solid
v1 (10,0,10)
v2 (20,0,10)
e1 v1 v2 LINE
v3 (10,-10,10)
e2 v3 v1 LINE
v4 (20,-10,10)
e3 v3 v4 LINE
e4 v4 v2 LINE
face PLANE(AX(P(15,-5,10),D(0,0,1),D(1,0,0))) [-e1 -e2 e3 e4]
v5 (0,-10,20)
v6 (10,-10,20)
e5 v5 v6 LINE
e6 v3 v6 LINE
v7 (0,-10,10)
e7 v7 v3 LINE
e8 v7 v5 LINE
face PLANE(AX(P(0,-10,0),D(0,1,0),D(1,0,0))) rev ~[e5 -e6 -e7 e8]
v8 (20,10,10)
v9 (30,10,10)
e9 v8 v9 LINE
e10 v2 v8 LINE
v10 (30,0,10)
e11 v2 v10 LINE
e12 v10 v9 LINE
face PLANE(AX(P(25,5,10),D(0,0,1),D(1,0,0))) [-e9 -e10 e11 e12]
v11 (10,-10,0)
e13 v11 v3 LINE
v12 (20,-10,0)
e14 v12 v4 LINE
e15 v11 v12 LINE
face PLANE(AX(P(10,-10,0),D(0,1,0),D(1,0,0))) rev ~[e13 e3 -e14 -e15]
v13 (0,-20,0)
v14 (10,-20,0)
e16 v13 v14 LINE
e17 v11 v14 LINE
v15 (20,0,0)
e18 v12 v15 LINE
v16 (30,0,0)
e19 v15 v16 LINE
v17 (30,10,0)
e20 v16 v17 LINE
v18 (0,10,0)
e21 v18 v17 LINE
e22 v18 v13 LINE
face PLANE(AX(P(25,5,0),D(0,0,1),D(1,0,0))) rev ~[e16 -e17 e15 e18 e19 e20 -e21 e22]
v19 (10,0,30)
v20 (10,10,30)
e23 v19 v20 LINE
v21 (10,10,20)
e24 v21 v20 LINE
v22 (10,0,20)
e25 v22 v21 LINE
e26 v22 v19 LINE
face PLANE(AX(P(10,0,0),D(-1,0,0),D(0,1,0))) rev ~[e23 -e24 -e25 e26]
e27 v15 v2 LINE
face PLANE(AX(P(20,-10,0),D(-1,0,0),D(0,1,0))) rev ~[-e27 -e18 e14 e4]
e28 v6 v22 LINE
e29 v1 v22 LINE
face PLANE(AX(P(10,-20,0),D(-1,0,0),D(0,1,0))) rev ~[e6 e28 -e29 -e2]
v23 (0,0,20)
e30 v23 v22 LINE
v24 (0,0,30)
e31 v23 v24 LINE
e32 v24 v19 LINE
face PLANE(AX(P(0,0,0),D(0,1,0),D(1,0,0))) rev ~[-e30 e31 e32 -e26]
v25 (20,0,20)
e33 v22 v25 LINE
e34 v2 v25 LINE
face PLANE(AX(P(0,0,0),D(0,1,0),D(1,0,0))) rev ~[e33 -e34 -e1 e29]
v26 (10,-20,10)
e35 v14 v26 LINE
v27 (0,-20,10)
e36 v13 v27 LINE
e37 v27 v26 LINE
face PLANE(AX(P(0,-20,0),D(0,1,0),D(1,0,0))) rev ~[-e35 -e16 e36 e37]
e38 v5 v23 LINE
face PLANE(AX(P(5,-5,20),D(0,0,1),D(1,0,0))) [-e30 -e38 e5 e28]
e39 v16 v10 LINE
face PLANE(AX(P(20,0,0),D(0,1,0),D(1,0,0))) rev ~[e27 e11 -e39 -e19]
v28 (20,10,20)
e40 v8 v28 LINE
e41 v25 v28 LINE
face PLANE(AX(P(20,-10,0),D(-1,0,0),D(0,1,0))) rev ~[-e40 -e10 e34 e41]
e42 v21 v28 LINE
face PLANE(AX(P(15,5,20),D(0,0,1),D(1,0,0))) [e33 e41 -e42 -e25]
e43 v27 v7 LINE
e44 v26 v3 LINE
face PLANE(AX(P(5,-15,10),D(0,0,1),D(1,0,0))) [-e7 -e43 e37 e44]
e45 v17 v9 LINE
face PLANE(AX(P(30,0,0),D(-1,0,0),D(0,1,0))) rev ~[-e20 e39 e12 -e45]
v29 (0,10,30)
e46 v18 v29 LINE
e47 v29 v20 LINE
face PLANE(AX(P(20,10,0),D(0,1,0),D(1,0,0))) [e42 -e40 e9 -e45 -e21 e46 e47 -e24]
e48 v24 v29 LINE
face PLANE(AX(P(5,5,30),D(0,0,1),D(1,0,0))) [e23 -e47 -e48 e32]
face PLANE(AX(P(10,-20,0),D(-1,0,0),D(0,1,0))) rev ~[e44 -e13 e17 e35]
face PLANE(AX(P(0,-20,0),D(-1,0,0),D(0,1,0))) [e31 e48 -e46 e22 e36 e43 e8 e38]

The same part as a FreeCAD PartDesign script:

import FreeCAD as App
import Part
import Sketcher
Q = App.Units.Quantity

doc = App.newDocument("Part")
body = doc.addObject("PartDesign::Body", "Body")

sketch1 = body.newObject("Sketcher::SketchObject", "Sketch")
sketch1.AttachmentSupport = (doc.getObject("XY_Plane"), [""])
sketch1.MapMode = "FlatFace"
sketch1.addGeometry([
    Part.LineSegment(App.Vector(0, 10, 0), App.Vector(0, 0, 0)),
    Part.LineSegment(App.Vector(0, 0, 0), App.Vector(10, 0, 0)),
    Part.LineSegment(App.Vector(10, 0, 0), App.Vector(10, 10, 0)),
    Part.LineSegment(App.Vector(10, 10, 0), App.Vector(0, 10, 0)),
], False)
sketch1.addConstraint([
    Sketcher.Constraint("Coincident", 0, 2, 1, 1),
    Sketcher.Constraint("Coincident", 1, 2, 2, 1),
    Sketcher.Constraint("Coincident", 2, 2, 3, 1),
    Sketcher.Constraint("Coincident", 3, 2, 0, 1),
    Sketcher.Constraint("Vertical", 0),
    Sketcher.Constraint("Horizontal", 1),
    Sketcher.Constraint("Vertical", 2),
    Sketcher.Constraint("Horizontal", 3),
    Sketcher.Constraint("Coincident", 0, 2, -1, 1),
    Sketcher.Constraint("Equal", 3, 0),
    Sketcher.Constraint("DistanceX", 1, 1, 1, 2, Q("10 mm")),
])
pad1 = body.newObject("PartDesign::Pad", "Pad")
pad1.Profile = sketch1
pad1.Length = 30
body2 = doc.addObject("PartDesign::Body", "Body001")

sketch2 = body2.newObject("Sketcher::SketchObject", "Sketch001")
sketch2.AttachmentSupport = (doc.getObject("XY_Plane001"), [""])
sketch2.MapMode = "FlatFace"
sketch2.addGeometry([
    Part.LineSegment(App.Vector(0, 0, 0), App.Vector(0, -10, 0)),
    Part.LineSegment(App.Vector(0, -10, 0), App.Vector(10, -10, 0)),
    Part.LineSegment(App.Vector(10, -10, 0), App.Vector(10, 0, 0)),
    Part.LineSegment(App.Vector(10, 0, 0), App.Vector(0, 0, 0)),
], False)
sketch2.addConstraint([
    Sketcher.Constraint("Coincident", 0, 2, 1, 1),
    Sketcher.Constraint("Coincident", 1, 2, 2, 1),
    Sketcher.Constraint("Coincident", 2, 2, 3, 1),
    Sketcher.Constraint("Coincident", 3, 2, 0, 1),
    Sketcher.Constraint("Vertical", 0),
    Sketcher.Constraint("Horizontal", 1),
    Sketcher.Constraint("Vertical", 2),
    Sketcher.Constraint("Horizontal", 3),
    Sketcher.Constraint("Coincident", 3, 2, -1, 1),
    Sketcher.Constraint("Equal", 3, 0),
    Sketcher.Constraint("DistanceX", 1, 1, 1, 2, Q("10 mm")),
])
pad2 = body2.newObject("PartDesign::Pad", "Pad001")
pad2.Profile = sketch2
pad2.Length = 20
body3 = doc.addObject("PartDesign::Body", "Body002")

sketch3 = body3.newObject("Sketcher::SketchObject", "Sketch002")
sketch3.AttachmentSupport = (doc.getObject("XY_Plane002"), [""])
sketch3.MapMode = "FlatFace"
sketch3.addGeometry([
    Part.LineSegment(App.Vector(0, -10, 0), App.Vector(0, -20, 0)),
    Part.LineSegment(App.Vector(0, -20, 0), App.Vector(10, -20, 0)),
    Part.LineSegment(App.Vector(10, -20, 0), App.Vector(10, -10, 0)),
    Part.LineSegment(App.Vector(10, -10, 0), App.Vector(0, -10, 0)),
], False)
sketch3.addConstraint([
    Sketcher.Constraint("Coincident", 0, 2, 1, 1),
    Sketcher.Constraint("Coincident", 1, 2, 2, 1),
    Sketcher.Constraint("Coincident", 2, 2, 3, 1),
    Sketcher.Constraint("Coincident", 3, 2, 0, 1),
    Sketcher.Constraint("Vertical", 0),
    Sketcher.Constraint("Horizontal", 1),
    Sketcher.Constraint("Vertical", 2),
    Sketcher.Constraint("Horizontal", 3),
    Sketcher.Constraint("PointOnObject", 0, 2, -2),
    Sketcher.Constraint("Equal", 3, 0),
    Sketcher.Constraint("DistanceX", 1, 1, 1, 2, Q("10 mm")),
    Sketcher.Constraint("DistanceY", 0, 2, -1, 1, Q("20 mm")),
])
pad3 = body3.newObject("PartDesign::Pad", "Pad002")
pad3.Profile = sketch3
pad3.Length = 10
body4 = doc.addObject("PartDesign::Body", "Body003")

sketch4 = body4.newObject("Sketcher::SketchObject", "Sketch003")
sketch4.AttachmentSupport = (doc.getObject("XY_Plane003"), [""])
sketch4.MapMode = "FlatFace"
sketch4.addGeometry([
    Part.LineSegment(App.Vector(10, 0, 0), App.Vector(10, -10, 0)),
    Part.LineSegment(App.Vector(10, -10, 0), App.Vector(20, -10, 0)),
    Part.LineSegment(App.Vector(20, -10, 0), App.Vector(20, 0, 0)),
    Part.LineSegment(App.Vector(20, 0, 0), App.Vector(10, 0, 0)),
], False)
sketch4.addConstraint([
    Sketcher.Constraint("Coincident", 0, 2, 1, 1),
    Sketcher.Constraint("Coincident", 1, 2, 2, 1),
    Sketcher.Constraint("Coincident", 2, 2, 3, 1),
    Sketcher.Constraint("Coincident", 3, 2, 0, 1),
    Sketcher.Constraint("Vertical", 0),
    Sketcher.Constraint("Horizontal", 1),
    Sketcher.Constraint("Vertical", 2),
    Sketcher.Constraint("Horizontal", 3),
    Sketcher.Constraint("PointOnObject", 2, 2, -1),
    Sketcher.Constraint("Equal", 3, 0),
    Sketcher.Constraint("DistanceX", 1, 1, 1, 2, Q("10 mm")),
    Sketcher.Constraint("DistanceX", -1, 1, 0, 2, Q("10 mm")),
])
pad4 = body4.newObject("PartDesign::Pad", "Pad003")
pad4.Profile = sketch4
pad4.Length = 10
body5 = doc.addObject("PartDesign::Body", "Body004")

sketch5 = body5.newObject("Sketcher::SketchObject", "Sketch004")
sketch5.AttachmentSupport = (doc.getObject("XY_Plane004"), [""])
sketch5.MapMode = "FlatFace"
sketch5.addGeometry([
    Part.LineSegment(App.Vector(20, 10, 0), App.Vector(20, 0, 0)),
    Part.LineSegment(App.Vector(20, 0, 0), App.Vector(30, 0, 0)),
    Part.LineSegment(App.Vector(30, 0, 0), App.Vector(30, 10, 0)),
    Part.LineSegment(App.Vector(30, 10, 0), App.Vector(20, 10, 0)),
], False)
sketch5.addConstraint([
    Sketcher.Constraint("Coincident", 0, 2, 1, 1),
    Sketcher.Constraint("Coincident", 1, 2, 2, 1),
    Sketcher.Constraint("Coincident", 2, 2, 3, 1),
    Sketcher.Constraint("Coincident", 3, 2, 0, 1),
    Sketcher.Constraint("Vertical", 0),
    Sketcher.Constraint("Horizontal", 1),
    Sketcher.Constraint("Vertical", 2),
    Sketcher.Constraint("Horizontal", 3),
    Sketcher.Constraint("PointOnObject", 0, 2, -1),
    Sketcher.Constraint("Equal", 3, 0),
    Sketcher.Constraint("DistanceX", 1, 1, 1, 2, Q("10 mm")),
    Sketcher.Constraint("DistanceX", -1, 1, 0, 2, Q("20 mm")),
])
pad5 = body5.newObject("PartDesign::Pad", "Pad004")
pad5.Profile = sketch5
pad5.Length = 10
body6 = doc.addObject("PartDesign::Body", "Body005")

sketch6 = body6.newObject("Sketcher::SketchObject", "Sketch005")
sketch6.AttachmentSupport = (doc.getObject("XY_Plane005"), [""])
sketch6.MapMode = "FlatFace"
sketch6.addGeometry([
    Part.LineSegment(App.Vector(10, 10, 0), App.Vector(10, 0, 0)),
    Part.LineSegment(App.Vector(10, 0, 0), App.Vector(20, 0, 0)),
    Part.LineSegment(App.Vector(20, 0, 0), App.Vector(20, 10, 0)),
    Part.LineSegment(App.Vector(20, 10, 0), App.Vector(10, 10, 0)),
], False)
sketch6.addConstraint([
    Sketcher.Constraint("Coincident", 0, 2, 1, 1),
    Sketcher.Constraint("Coincident", 1, 2, 2, 1),
    Sketcher.Constraint("Coincident", 2, 2, 3, 1),
    Sketcher.Constraint("Coincident", 3, 2, 0, 1),
    Sketcher.Constraint("Vertical", 0),
    Sketcher.Constraint("Horizontal", 1),
    Sketcher.Constraint("Vertical", 2),
    Sketcher.Constraint("Horizontal", 3),
    Sketcher.Constraint("PointOnObject", 0, 2, -1),
    Sketcher.Constraint("Equal", 3, 0),
    Sketcher.Constraint("DistanceX", 1, 1, 1, 2, Q("10 mm")),
    Sketcher.Constraint("DistanceX", -1, 1, 0, 2, Q("10 mm")),
])
pad6 = body6.newObject("PartDesign::Pad", "Pad005")
pad6.Profile = sketch6
pad6.Length = 20
doc.recompute()

boolean = body6.newObject("PartDesign::Boolean", "Boolean")
boolean.Type = "Fuse"
boolean.addObjects([body])
doc.recompute()

boolean2 = body6.newObject("PartDesign::Boolean", "Boolean001")
boolean2.Type = "Fuse"
boolean2.addObjects([body2])
doc.recompute()

boolean3 = body6.newObject("PartDesign::Boolean", "Boolean002")
boolean3.Type = "Fuse"
boolean3.addObjects([body3])
doc.recompute()

boolean4 = body6.newObject("PartDesign::Boolean", "Boolean003")
boolean4.Type = "Fuse"
boolean4.addObjects([body4])
doc.recompute()

boolean5 = body6.newObject("PartDesign::Boolean", "Boolean004")
boolean5.Type = "Fuse"
boolean5.addObjects([body5])

doc.recompute()
